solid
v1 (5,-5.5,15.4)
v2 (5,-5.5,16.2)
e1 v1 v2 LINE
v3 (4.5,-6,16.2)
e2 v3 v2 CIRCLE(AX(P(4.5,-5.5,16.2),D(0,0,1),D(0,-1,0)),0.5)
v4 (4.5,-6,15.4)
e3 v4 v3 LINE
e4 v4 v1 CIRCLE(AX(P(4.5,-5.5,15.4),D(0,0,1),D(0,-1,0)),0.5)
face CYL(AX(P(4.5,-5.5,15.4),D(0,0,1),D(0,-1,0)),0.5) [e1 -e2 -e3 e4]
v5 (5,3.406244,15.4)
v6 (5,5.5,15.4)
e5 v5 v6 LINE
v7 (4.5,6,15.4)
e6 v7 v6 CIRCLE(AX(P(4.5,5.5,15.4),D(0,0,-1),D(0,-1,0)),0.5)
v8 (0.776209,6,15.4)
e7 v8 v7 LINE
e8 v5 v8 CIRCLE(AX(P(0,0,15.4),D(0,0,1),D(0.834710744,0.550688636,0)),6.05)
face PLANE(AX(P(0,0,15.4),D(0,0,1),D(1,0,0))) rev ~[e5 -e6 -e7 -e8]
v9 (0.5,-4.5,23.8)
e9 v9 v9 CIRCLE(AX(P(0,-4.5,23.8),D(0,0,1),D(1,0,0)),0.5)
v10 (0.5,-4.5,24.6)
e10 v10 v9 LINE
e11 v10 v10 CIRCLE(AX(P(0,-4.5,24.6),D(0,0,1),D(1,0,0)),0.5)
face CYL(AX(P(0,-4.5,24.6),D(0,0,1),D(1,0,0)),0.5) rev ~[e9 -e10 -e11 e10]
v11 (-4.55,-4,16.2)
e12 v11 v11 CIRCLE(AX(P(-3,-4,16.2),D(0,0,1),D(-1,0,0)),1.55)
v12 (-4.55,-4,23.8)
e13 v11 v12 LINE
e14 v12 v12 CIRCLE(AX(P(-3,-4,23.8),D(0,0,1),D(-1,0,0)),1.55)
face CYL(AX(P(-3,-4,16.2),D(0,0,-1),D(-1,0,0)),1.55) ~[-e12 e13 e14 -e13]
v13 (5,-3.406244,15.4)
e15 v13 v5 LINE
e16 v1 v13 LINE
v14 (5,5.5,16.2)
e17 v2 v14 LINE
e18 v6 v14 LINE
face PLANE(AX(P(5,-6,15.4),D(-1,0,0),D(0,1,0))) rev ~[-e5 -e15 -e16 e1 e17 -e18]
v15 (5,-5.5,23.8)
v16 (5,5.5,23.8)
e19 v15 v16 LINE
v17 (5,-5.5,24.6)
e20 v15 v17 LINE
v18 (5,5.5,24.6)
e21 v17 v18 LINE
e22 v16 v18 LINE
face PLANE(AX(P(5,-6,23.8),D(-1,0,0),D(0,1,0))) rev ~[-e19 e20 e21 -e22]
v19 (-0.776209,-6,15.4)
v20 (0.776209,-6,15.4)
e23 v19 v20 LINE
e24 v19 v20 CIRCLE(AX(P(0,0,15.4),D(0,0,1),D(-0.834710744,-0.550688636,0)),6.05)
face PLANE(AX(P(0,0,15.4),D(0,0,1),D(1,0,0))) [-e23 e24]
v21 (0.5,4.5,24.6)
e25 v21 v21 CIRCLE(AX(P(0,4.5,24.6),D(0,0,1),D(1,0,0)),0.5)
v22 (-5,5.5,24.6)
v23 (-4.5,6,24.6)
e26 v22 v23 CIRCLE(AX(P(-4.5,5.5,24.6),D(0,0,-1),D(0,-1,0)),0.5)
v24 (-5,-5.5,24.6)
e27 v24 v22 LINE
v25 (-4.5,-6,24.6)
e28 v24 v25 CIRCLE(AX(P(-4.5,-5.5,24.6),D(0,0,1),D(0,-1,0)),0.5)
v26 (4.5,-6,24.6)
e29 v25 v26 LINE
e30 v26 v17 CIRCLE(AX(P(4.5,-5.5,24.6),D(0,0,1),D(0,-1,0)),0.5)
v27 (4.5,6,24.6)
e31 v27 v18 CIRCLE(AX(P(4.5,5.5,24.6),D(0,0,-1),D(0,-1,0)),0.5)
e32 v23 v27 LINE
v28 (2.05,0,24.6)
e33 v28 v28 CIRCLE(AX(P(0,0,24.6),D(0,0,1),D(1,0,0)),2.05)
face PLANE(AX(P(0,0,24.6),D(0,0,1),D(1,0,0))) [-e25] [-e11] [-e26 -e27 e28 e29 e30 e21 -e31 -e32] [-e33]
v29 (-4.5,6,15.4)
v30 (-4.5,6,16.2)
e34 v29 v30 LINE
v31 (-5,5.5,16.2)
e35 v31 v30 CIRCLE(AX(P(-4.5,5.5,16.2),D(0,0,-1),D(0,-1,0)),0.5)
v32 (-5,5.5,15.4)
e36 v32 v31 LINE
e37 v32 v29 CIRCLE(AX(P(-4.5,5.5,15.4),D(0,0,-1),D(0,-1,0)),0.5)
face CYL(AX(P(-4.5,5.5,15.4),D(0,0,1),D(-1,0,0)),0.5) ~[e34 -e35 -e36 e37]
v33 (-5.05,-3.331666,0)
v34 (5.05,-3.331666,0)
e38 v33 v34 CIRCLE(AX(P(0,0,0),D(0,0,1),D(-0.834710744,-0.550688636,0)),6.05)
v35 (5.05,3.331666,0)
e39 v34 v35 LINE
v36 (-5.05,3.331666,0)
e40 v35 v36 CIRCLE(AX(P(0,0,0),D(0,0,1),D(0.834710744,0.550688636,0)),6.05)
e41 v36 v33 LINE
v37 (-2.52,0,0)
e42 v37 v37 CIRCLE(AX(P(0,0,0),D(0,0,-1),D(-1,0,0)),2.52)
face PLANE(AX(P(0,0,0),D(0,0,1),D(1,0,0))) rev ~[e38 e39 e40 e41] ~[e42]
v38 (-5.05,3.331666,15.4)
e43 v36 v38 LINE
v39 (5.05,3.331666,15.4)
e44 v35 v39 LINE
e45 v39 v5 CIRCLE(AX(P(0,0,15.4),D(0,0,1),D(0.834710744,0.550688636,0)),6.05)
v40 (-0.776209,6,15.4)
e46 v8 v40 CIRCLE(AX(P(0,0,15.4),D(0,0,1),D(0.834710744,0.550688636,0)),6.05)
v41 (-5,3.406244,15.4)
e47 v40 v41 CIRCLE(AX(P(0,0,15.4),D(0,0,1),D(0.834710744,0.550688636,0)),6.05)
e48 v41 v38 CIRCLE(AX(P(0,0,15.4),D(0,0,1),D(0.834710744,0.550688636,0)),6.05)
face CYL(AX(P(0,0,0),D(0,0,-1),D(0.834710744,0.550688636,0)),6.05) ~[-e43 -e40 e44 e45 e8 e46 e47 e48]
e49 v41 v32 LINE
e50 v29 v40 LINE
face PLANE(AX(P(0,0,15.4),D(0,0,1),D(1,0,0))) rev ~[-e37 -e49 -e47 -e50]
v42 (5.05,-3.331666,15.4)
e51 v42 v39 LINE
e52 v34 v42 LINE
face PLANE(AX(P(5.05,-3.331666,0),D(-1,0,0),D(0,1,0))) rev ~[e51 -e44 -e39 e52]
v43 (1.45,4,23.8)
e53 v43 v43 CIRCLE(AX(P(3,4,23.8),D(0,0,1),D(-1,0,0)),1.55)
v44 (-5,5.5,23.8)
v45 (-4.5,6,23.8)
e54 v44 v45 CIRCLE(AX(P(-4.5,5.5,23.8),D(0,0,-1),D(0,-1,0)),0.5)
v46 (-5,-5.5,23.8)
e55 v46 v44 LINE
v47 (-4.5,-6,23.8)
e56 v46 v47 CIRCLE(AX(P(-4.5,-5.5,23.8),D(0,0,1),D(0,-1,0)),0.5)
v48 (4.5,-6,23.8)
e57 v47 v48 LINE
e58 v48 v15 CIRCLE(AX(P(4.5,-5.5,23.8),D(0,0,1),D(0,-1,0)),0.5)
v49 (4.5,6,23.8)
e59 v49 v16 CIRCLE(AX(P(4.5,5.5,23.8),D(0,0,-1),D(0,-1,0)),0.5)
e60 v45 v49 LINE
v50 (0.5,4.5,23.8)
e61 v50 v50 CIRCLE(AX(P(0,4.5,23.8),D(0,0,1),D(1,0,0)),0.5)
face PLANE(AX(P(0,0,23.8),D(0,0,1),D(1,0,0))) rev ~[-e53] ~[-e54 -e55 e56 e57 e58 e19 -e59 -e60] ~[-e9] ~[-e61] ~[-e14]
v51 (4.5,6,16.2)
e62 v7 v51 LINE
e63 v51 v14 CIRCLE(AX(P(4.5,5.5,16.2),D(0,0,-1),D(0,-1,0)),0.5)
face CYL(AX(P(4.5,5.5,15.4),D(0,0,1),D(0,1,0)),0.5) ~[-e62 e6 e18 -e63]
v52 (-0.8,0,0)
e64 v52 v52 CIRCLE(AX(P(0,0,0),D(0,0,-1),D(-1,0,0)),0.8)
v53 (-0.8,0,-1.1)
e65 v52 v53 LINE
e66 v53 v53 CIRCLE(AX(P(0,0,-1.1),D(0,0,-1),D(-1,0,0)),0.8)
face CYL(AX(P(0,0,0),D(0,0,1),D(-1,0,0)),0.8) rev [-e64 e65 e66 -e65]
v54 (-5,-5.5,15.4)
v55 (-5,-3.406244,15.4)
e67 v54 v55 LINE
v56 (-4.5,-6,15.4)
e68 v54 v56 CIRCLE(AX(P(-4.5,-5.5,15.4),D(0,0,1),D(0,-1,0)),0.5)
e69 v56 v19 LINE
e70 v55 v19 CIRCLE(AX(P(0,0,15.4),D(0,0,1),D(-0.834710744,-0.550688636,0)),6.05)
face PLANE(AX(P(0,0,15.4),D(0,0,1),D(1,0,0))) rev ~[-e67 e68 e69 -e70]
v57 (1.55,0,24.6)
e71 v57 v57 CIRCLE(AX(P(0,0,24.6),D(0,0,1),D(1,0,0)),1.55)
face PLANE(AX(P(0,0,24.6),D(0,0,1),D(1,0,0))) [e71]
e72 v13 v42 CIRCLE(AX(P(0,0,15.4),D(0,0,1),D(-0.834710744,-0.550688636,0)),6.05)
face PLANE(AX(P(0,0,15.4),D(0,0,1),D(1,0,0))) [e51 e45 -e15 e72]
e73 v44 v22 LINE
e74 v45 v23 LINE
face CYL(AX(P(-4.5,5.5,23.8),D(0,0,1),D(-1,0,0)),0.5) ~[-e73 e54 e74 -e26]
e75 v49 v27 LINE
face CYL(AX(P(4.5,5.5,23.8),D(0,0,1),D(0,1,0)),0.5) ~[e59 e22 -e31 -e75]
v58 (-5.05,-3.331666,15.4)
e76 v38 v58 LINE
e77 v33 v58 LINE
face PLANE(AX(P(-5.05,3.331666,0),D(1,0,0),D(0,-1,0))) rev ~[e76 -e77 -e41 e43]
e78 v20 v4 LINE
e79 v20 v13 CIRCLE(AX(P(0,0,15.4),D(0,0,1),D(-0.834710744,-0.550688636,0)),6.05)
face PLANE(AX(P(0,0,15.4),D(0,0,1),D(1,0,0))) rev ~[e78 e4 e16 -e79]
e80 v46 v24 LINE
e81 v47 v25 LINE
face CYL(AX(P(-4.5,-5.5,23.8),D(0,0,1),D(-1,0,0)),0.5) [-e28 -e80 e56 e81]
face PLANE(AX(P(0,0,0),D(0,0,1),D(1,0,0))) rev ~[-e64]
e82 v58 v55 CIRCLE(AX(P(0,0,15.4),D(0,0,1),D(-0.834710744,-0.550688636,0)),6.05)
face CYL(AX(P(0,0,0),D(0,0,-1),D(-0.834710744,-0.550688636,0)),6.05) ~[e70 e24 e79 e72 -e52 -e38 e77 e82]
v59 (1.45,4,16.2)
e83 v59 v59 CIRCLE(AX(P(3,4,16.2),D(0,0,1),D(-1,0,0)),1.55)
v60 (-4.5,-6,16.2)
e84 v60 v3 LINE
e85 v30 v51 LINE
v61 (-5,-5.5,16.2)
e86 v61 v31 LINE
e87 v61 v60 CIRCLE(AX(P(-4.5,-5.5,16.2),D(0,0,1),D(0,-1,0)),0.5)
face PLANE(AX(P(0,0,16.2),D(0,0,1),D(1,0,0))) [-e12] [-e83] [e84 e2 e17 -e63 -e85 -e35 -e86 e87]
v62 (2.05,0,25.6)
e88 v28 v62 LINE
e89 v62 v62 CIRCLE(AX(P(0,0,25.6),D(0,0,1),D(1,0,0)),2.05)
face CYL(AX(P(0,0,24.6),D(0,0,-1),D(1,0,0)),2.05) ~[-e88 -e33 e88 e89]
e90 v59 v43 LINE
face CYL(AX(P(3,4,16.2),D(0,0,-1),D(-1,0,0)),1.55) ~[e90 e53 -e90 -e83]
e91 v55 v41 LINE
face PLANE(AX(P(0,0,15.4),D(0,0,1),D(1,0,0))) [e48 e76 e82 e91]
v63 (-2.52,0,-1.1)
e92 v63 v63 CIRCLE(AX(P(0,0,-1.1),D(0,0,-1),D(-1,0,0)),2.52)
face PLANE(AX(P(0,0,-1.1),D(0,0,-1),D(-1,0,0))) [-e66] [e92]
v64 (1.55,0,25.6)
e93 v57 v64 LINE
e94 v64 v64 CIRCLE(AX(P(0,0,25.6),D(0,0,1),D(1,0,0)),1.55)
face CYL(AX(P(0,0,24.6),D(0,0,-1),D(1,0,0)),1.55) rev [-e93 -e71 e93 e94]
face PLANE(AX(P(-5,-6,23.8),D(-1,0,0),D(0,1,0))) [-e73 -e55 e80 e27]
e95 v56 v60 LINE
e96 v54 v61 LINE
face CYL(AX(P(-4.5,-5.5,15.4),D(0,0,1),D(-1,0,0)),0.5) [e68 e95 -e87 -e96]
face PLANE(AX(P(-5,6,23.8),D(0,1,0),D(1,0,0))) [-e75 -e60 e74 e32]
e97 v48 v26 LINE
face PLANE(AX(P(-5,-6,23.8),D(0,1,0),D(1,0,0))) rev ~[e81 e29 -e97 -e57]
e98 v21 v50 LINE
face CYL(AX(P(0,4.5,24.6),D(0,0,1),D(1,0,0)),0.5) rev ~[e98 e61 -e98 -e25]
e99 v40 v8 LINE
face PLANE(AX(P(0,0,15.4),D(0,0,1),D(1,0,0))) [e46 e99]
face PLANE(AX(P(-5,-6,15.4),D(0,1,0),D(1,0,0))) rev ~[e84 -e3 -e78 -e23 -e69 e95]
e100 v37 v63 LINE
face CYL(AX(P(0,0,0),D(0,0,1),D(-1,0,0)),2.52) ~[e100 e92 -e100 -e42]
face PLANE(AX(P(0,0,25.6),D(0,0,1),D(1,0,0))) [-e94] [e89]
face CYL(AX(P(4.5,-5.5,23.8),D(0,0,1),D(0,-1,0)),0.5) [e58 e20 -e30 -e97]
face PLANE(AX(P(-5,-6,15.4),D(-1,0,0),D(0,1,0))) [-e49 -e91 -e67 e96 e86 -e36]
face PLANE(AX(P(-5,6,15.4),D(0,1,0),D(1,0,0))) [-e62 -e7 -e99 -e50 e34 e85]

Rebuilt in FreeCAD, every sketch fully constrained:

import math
import FreeCAD as App
import Part
import Sketcher
Q = App.Units.Quantity


def edges_at(feature, points):
    """Names of the edges that pass closest to the given points."""
    edges = feature.Shape.Edges
    near = lambda p: min(range(len(edges)), key=lambda i: edges[i].distToShape(Part.Vertex(*p))[0])
    return sorted({f"Edge{near(p) + 1}" for p in points})

doc = App.newDocument("Part")
body = doc.addObject("PartDesign::Body", "Body")

# Sketch on XY plane
sketch1 = body.newObject("Sketcher::SketchObject", "Sketch")
sketch1.AttachmentSupport = (doc.getObject("XY_Plane"), [""])
sketch1.MapMode = "FlatFace"
sketch1.addGeometry(Part.LineSegment(App.Vector(5, -3, 0), App.Vector(5, 3, 0)), False)
sketch1.addGeometry(Part.ArcOfCircle(Part.Circle(App.Vector(0, 0, 0), App.Vector(0, 0, 1), 6), math.radians(33), math.radians(147)), False)
sketch1.addGeometry(Part.LineSegment(App.Vector(-5, 3, 0), App.Vector(-5, -3, 0)), False)
sketch1.addGeometry(Part.ArcOfCircle(Part.Circle(App.Vector(0, 0, 0), App.Vector(0, 0, 1), 6), math.radians(-147), math.radians(-33)), False)
sketch1.addConstraint(Sketcher.Constraint("Coincident", 0, 2, 1, 1))
sketch1.addConstraint(Sketcher.Constraint("Coincident", 1, 2, 2, 1))
sketch1.addConstraint(Sketcher.Constraint("Coincident", 2, 2, 3, 1))
sketch1.addConstraint(Sketcher.Constraint("Coincident", 3, 2, 0, 1))
sketch1.addConstraint(Sketcher.Constraint("Vertical", 0))
sketch1.addConstraint(Sketcher.Constraint("Vertical", 2))
sketch1.addConstraint(Sketcher.Constraint("Coincident", 1, 3, -1, 1))
sketch1.addConstraint(Sketcher.Constraint("Coincident", 3, 3, -1, 1))
sketch1.addConstraint(Sketcher.Constraint("Equal", 1, 3))
sketch1.addConstraint(Sketcher.Constraint("Horizontal", 0, 2, 1, 2))
sketch1.addConstraint(Sketcher.Constraint("Radius", 1, Q("6.05 mm")))
sketch1.addConstraint(Sketcher.Constraint("DistanceX", 1, 2, 0, 2, Q("10.1 mm")))
pad1 = body.newObject("PartDesign::Pad", "Pad")
pad1.Profile = sketch1
pad1.Length = 15.4

# Sketch on XY plane
sketch2 = body.newObject("Sketcher::SketchObject", "Sketch001")
sketch2.AttachmentSupport = (doc.getObject("XY_Plane"), [""])
sketch2.MapMode = "FlatFace"
sketch2.addGeometry(Part.Circle(App.Vector(0, 0, 0), App.Vector(0, 0, 1), 2.5), False)
sketch2.addGeometry(Part.Circle(App.Vector(0, 0, 0), App.Vector(0, 0, 1), 0.8), False)
sketch2.addConstraint(Sketcher.Constraint("Coincident", 0, 3, -1, 1))
sketch2.addConstraint(Sketcher.Constraint("Coincident", 1, 3, -1, 1))
sketch2.addConstraint(Sketcher.Constraint("Diameter", 1, Q("1.6 mm")))
sketch2.addConstraint(Sketcher.Constraint("Diameter", 0, Q("5.04 mm")))
pad2 = body.newObject("PartDesign::Pad", "Pad001")
pad2.Profile = sketch2
pad2.Length = 1.1
pad2.Reversed = True

# Sketch on XY plane
sketch3 = body.newObject("Sketcher::SketchObject", "Sketch002")
sketch3.AttachmentSupport = (doc.getObject("XY_Plane"), [""])
sketch3.MapMode = "FlatFace"
sketch3.AttachmentOffset = App.Placement(App.Vector(0, 0, 15.4), App.Rotation())
sketch3.addGeometry(Part.LineSegment(App.Vector(-5, 6, 0), App.Vector(-5, -6, 0)), False)
sketch3.addGeometry(Part.LineSegment(App.Vector(-5, -6, 0), App.Vector(5, -6, 0)), False)
sketch3.addGeometry(Part.LineSegment(App.Vector(5, -6, 0), App.Vector(5, 6, 0)), False)
sketch3.addGeometry(Part.LineSegment(App.Vector(5, 6, 0), App.Vector(-5, 6, 0)), False)
sketch3.addConstraint(Sketcher.Constraint("Coincident", 0, 2, 1, 1))
sketch3.addConstraint(Sketcher.Constraint("Coincident", 1, 2, 2, 1))
sketch3.addConstraint(Sketcher.Constraint("Coincident", 2, 2, 3, 1))
sketch3.addConstraint(Sketcher.Constraint("Coincident", 3, 2, 0, 1))
sketch3.addConstraint(Sketcher.Constraint("Vertical", 0))
sketch3.addConstraint(Sketcher.Constraint("Horizontal", 1))
sketch3.addConstraint(Sketcher.Constraint("Vertical", 2))
sketch3.addConstraint(Sketcher.Constraint("Horizontal", 3))
sketch3.addConstraint(Sketcher.Constraint("Symmetric", 0, 2, 2, 2, -1, 1))
sketch3.addConstraint(Sketcher.Constraint("DistanceX", 1, 1, 1, 2, Q("10 mm")))
sketch3.addConstraint(Sketcher.Constraint("DistanceY", 0, 2, 0, 1, Q("12 mm")))
pad3 = body.newObject("PartDesign::Pad", "Pad002")
pad3.Profile = sketch3
pad3.Length = 0.8

# Sketch on XY plane
sketch4 = body.newObject("Sketcher::SketchObject", "Sketch003")
sketch4.AttachmentSupport = (doc.getObject("XY_Plane"), [""])
sketch4.MapMode = "FlatFace"
sketch4.AttachmentOffset = App.Placement(App.Vector(0, 0, 16.2), App.Rotation())
sketch4.addGeometry(Part.Circle(App.Vector(3, 4, 0), App.Vector(0, 0, 1), 1.6), False)
sketch4.addGeometry(Part.Circle(App.Vector(-3, -4, 0), App.Vector(0, 0, 1), 1.6), False)
sketch4.addConstraint(Sketcher.Constraint("Equal", 0, 1))
sketch4.addConstraint(Sketcher.Constraint("Symmetric", 0, 3, 1, 3, -1, 1))
sketch4.addConstraint(Sketcher.Constraint("Diameter", 0, Q("3.1 mm")))
sketch4.addConstraint(Sketcher.Constraint("DistanceX", -1, 1, 0, 3, Q("3 mm")))
sketch4.addConstraint(Sketcher.Constraint("DistanceY", -1, 1, 0, 3, Q("4 mm")))
pad4 = body.newObject("PartDesign::Pad", "Pad003")
pad4.Profile = sketch4
pad4.Length = 7.6

# Sketch on XY plane
sketch5 = body.newObject("Sketcher::SketchObject", "Sketch004")
sketch5.AttachmentSupport = (doc.getObject("XY_Plane"), [""])
sketch5.MapMode = "FlatFace"
sketch5.AttachmentOffset = App.Placement(App.Vector(0, 0, 23.8), App.Rotation())
sketch5.addGeometry(Part.LineSegment(App.Vector(-5, 6, 0), App.Vector(-5, -6, 0)), False)
sketch5.addGeometry(Part.LineSegment(App.Vector(-5, -6, 0), App.Vector(5, -6, 0)), False)
sketch5.addGeometry(Part.LineSegment(App.Vector(5, -6, 0), App.Vector(5, 6, 0)), False)
sketch5.addGeometry(Part.LineSegment(App.Vector(5, 6, 0), App.Vector(-5, 6, 0)), False)
sketch5.addConstraint(Sketcher.Constraint("Coincident", 0, 2, 1, 1))
sketch5.addConstraint(Sketcher.Constraint("Coincident", 1, 2, 2, 1))
sketch5.addConstraint(Sketcher.Constraint("Coincident", 2, 2, 3, 1))
sketch5.addConstraint(Sketcher.Constraint("Coincident", 3, 2, 0, 1))
sketch5.addConstraint(Sketcher.Constraint("Vertical", 0))
sketch5.addConstraint(Sketcher.Constraint("Horizontal", 1))
sketch5.addConstraint(Sketcher.Constraint("Vertical", 2))
sketch5.addConstraint(Sketcher.Constraint("Horizontal", 3))
sketch5.addConstraint(Sketcher.Constraint("Symmetric", 0, 2, 2, 2, -1, 1))
sketch5.addConstraint(Sketcher.Constraint("DistanceX", 1, 1, 1, 2, Q("10 mm")))
sketch5.addConstraint(Sketcher.Constraint("DistanceY", 0, 2, 0, 1, Q("12 mm")))
pad5 = body.newObject("PartDesign::Pad", "Pad004")
pad5.Profile = sketch5
pad5.Length = 0.8

# Sketch on XY plane
sketch6 = body.newObject("Sketcher::SketchObject", "Sketch005")
sketch6.AttachmentSupport = (doc.getObject("XY_Plane"), [""])
sketch6.MapMode = "FlatFace"
sketch6.AttachmentOffset = App.Placement(App.Vector(0, 0, 24.6), App.Rotation())
sketch6.addGeometry(Part.Circle(App.Vector(0, 0, 0), App.Vector(0, 0, 1), 2), False)
sketch6.addGeometry(Part.Circle(App.Vector(0, 0, 0), App.Vector(0, 0, 1), 1.6), False)
sketch6.addConstraint(Sketcher.Constraint("Coincident", 0, 3, -1, 1))
sketch6.addConstraint(Sketcher.Constraint("Coincident", 1, 3, -1, 1))
sketch6.addConstraint(Sketcher.Constraint("Diameter", 0, Q("4.1 mm")))
sketch6.addConstraint(Sketcher.Constraint("Diameter", 1, Q("3.1 mm")))
pad6 = body.newObject("PartDesign::Pad", "Pad005")
pad6.Profile = sketch6
pad6.Length = 1
doc.recompute()

fillet = body.newObject("PartDesign::Fillet", "Fillet")
fillet.Base = (pad6, edges_at(pad6, [
    (-5, 6, 15.8),
    (-5, -6, 15.8),
    (5, -6, 15.8),
    (5, 6, 15.8),
    (5, 6, 24.2),
    (-5, 6, 24.2),
    (-5, -6, 24.2),
    (5, -6, 24.2),
]))
fillet.Radius = 0.5

# Sketch on XY plane
sketch7 = body.newObject("Sketcher::SketchObject", "Sketch006")
sketch7.AttachmentSupport = (doc.getObject("XY_Plane"), [""])
sketch7.MapMode = "FlatFace"
sketch7.AttachmentOffset = App.Placement(App.Vector(0, 0, 24.6), App.Rotation())
sketch7.addGeometry(Part.Circle(App.Vector(0, -4.5, 0), App.Vector(0, 0, 1), 0.5), False)
sketch7.addConstraint(Sketcher.Constraint("PointOnObject", 0, 3, -2))
sketch7.addConstraint(Sketcher.Constraint("Diameter", 0, Q("1 mm")))
sketch7.addConstraint(Sketcher.Constraint("DistanceY", 0, 3, -1, 1, Q("4.5 mm")))
pocket1 = body.newObject("PartDesign::Pocket", "Pocket")
pocket1.Profile = sketch7
pocket1.Type = "UpToFirst"

# Sketch on XY plane
sketch8 = body.newObject("Sketcher::SketchObject", "Sketch007")
sketch8.AttachmentSupport = (doc.getObject("XY_Plane"), [""])
sketch8.MapMode = "FlatFace"
sketch8.AttachmentOffset = App.Placement(App.Vector(0, 0, 24.6), App.Rotation())
sketch8.addGeometry(Part.Circle(App.Vector(0, 4.5, 0), App.Vector(0, 0, 1), 0.5), False)
sketch8.addConstraint(Sketcher.Constraint("PointOnObject", 0, 3, -2))
sketch8.addConstraint(Sketcher.Constraint("Diameter", 0, Q("1 mm")))
sketch8.addConstraint(Sketcher.Constraint("DistanceY", -1, 1, 0, 3, Q("4.5 mm")))
pocket2 = body.newObject("PartDesign::Pocket", "Pocket001")
pocket2.Profile = sketch8
pocket2.Type = "UpToFirst"

doc.recompute()
